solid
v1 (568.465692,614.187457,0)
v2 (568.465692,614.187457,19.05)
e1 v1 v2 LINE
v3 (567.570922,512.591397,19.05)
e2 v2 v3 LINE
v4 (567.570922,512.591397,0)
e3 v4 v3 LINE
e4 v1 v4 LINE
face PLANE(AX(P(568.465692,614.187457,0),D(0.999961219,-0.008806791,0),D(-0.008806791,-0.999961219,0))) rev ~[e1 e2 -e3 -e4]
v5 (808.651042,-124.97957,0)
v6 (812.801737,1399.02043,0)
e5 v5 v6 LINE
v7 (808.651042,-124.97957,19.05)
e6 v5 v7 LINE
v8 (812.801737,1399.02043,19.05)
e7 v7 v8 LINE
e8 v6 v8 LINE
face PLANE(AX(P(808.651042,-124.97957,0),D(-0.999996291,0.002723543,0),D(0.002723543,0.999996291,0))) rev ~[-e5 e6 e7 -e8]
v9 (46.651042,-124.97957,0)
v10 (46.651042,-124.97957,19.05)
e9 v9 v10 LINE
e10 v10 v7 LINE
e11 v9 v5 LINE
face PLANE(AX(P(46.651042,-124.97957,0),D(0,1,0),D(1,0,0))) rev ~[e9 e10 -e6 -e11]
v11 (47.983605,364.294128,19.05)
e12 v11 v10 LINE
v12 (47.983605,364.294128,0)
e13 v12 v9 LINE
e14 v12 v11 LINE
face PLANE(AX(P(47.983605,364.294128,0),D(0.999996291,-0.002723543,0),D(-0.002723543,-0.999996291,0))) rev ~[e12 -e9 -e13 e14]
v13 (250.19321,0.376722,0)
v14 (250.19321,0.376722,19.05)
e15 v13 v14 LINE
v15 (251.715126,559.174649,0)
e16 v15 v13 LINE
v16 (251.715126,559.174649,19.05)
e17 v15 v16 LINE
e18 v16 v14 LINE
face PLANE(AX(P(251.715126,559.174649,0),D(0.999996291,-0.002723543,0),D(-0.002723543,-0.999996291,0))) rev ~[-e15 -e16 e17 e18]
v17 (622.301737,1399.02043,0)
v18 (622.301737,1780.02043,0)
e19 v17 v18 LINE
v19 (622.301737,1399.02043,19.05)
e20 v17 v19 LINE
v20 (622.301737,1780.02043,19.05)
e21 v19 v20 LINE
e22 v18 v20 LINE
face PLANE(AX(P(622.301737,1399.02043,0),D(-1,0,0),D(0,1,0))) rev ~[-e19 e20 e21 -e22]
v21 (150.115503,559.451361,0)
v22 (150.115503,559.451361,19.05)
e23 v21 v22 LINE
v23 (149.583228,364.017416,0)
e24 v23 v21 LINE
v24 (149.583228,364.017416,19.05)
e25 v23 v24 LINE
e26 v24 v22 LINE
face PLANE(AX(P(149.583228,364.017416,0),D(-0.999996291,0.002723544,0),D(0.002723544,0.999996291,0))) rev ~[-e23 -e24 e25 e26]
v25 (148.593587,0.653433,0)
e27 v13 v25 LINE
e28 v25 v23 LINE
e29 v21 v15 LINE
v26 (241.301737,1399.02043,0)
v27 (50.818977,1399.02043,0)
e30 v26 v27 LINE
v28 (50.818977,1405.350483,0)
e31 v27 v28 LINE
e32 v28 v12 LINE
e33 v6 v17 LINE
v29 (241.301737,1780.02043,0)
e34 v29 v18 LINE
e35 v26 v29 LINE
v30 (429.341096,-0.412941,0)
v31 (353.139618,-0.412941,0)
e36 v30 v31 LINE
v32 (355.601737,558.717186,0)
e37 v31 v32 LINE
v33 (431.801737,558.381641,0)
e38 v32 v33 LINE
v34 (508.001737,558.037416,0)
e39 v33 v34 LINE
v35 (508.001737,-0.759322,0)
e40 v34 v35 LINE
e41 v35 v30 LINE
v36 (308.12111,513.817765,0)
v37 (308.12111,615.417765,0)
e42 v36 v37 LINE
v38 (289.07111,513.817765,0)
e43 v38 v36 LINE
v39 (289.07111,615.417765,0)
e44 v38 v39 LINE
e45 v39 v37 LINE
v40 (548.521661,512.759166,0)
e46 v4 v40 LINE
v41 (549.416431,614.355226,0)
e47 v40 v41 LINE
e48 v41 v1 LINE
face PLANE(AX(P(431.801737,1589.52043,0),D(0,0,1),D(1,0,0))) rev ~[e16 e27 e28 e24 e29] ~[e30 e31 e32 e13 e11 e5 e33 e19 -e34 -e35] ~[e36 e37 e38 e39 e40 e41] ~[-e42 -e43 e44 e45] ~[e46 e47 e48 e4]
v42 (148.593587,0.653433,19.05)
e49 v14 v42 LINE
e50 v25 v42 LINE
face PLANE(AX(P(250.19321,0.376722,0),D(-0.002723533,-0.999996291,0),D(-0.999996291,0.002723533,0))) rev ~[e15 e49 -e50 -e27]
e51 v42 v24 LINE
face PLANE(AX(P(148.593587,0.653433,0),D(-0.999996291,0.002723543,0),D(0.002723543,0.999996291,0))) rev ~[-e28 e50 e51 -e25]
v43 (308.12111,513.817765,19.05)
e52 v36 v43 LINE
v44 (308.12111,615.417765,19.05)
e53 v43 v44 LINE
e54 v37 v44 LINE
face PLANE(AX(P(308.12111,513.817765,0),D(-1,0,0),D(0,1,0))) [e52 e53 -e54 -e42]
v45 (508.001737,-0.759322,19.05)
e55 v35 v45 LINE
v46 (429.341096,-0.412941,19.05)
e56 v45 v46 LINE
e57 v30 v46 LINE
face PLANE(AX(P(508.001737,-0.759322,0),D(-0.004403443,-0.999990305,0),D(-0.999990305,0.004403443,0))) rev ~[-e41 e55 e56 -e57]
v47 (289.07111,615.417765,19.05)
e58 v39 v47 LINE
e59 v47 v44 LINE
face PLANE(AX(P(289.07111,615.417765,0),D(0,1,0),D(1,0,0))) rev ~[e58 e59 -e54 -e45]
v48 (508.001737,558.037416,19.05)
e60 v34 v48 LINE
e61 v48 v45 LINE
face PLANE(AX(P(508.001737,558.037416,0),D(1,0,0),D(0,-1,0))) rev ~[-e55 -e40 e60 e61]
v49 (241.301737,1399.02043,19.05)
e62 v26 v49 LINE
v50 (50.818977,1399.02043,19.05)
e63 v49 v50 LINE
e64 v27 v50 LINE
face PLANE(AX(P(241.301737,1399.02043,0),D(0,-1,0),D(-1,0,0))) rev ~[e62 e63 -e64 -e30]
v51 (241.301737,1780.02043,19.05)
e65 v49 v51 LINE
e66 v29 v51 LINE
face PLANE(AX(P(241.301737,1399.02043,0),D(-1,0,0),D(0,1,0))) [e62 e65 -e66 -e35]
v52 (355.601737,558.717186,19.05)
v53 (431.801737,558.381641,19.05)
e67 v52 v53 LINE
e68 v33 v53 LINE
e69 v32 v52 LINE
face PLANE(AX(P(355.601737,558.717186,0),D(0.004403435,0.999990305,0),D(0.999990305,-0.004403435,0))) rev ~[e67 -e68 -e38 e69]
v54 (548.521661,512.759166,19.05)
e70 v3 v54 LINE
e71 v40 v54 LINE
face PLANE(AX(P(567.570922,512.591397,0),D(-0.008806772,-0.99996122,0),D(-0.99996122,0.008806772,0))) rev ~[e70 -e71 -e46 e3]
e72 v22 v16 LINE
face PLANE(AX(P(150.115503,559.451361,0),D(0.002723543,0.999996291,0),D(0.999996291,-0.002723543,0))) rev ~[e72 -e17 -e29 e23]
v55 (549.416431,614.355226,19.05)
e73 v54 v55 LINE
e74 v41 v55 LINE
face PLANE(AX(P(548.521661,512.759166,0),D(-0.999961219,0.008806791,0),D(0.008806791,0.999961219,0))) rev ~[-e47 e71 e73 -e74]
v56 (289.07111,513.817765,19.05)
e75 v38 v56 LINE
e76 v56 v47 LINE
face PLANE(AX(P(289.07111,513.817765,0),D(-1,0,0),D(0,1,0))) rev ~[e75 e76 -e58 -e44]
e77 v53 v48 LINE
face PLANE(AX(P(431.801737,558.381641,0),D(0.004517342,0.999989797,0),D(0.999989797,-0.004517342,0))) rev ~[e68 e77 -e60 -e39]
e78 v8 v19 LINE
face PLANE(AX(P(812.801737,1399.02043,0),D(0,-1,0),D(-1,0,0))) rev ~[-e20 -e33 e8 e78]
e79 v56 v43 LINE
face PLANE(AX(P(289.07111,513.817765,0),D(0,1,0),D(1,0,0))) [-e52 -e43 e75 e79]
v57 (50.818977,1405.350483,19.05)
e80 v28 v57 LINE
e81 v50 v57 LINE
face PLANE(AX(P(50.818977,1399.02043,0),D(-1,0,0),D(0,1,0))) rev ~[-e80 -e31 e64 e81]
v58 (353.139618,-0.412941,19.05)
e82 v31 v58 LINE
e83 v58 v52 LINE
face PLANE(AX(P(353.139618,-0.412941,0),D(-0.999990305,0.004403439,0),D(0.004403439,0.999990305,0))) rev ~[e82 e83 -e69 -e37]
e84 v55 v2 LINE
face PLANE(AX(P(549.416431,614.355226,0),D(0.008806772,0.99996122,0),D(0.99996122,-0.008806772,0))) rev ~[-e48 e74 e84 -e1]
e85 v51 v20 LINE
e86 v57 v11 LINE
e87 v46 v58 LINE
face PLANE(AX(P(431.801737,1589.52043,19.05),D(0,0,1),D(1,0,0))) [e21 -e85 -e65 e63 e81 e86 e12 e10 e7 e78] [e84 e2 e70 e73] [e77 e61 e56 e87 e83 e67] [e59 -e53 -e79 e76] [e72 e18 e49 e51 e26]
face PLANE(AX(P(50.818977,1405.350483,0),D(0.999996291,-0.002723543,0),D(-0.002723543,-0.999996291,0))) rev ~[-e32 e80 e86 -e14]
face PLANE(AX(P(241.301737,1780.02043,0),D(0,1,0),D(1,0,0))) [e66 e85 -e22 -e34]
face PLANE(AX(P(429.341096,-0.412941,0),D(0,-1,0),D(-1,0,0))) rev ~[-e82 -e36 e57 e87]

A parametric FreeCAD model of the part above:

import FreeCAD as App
import Part
import Sketcher

V = App.Vector
Q = App.Units.Quantity


def add_polygon(sketch, points):
    """Adds a closed chain of lines whose ends are joined by coincident constraints."""
    first, n = sketch.GeometryCount, len(points)
    for a, b in zip(points, points[1:] + points[:1]):
        sketch.addGeometry(Part.LineSegment(App.Vector(*a, 0), App.Vector(*b, 0)), False)
    for i in range(n):
        sketch.addConstraint(Sketcher.Constraint("Coincident", first + i, 2, first + (i + 1) % n, 1))

doc = App.newDocument("Part")
body = doc.addObject("PartDesign::Body", "Body")

sketch1 = body.newObject("Sketcher::SketchObject", "Sketch")
sketch1.AttachmentSupport = (doc.getObject("XY_Plane"), [""])
sketch1.MapMode = "FlatFace"
add_polygon(sketch1, [(241.301737, 1780.02043), (241.301737, 1399.02043), (50.818977, 1399.02043), (50.818977, 1405.350483), (47.983605, 364.294128), (46.651042, -124.97957), (808.651042, -124.97957), (812.801737, 1399.02043), (622.301737, 1399.02043), (622.301737, 1780.02043)])
add_polygon(sketch1, [(250.19321, 0.376722), (148.593587, 0.653433), (149.583228, 364.017416), (150.115503, 559.451361), (251.715126, 559.174649)])
add_polygon(sketch1, [(353.139618, -0.412941), (355.601737, 558.717186), (431.801737, 558.381641), (508.001737, 558.037416), (508.001737, -0.759322), (429.341096, -0.412941)])
add_polygon(sketch1, [(308.12111, 513.817765), (289.07111, 513.817765), (289.07111, 615.417765), (308.12111, 615.417765)])
add_polygon(sketch1, [(567.570922, 512.591397), (548.521661, 512.759166), (549.416431, 614.355226), (568.465692, 614.187457)])
sketch1.addConstraint(Sketcher.Constraint("Vertical", 0))
sketch1.addConstraint(Sketcher.Constraint("Horizontal", 1))
sketch1.addConstraint(Sketcher.Constraint("Vertical", 2))
sketch1.addConstraint(Sketcher.Constraint("Horizontal", 5))
sketch1.addConstraint(Sketcher.Constraint("Horizontal", 7))
sketch1.addConstraint(Sketcher.Constraint("Vertical", 8))
sketch1.addConstraint(Sketcher.Constraint("Horizontal", 9))
sketch1.addConstraint(Sketcher.Constraint("Vertical", 18))
sketch1.addConstraint(Sketcher.Constraint("Horizontal", 20))
sketch1.addConstraint(Sketcher.Constraint("Horizontal", 21))
sketch1.addConstraint(Sketcher.Constraint("Vertical", 22))
sketch1.addConstraint(Sketcher.Constraint("Horizontal", 23))
sketch1.addConstraint(Sketcher.Constraint("Vertical", 24))
sketch1.addConstraint(Sketcher.Constraint("DistanceX", 5, 1, 5, 2, Q("30 in")))
sketch1.addConstraint(Sketcher.Constraint("DistanceX", 9, 2, 9, 1, Q("15 in")))
sketch1.addConstraint(Sketcher.Constraint("DistanceY", 0, 2, 0, 1, Q("15 in")))
sketch1.addConstraint(Sketcher.Constraint("DistanceY", 8, 1, 8, 2, Q("15 in")))
sketch1.addConstraint(Sketcher.Constraint("DistanceY", 22, 1, 22, 2, Q("4 in")))
sketch1.addConstraint(Sketcher.Constraint("Distance", 10, Q("4 in")))
sketch1.addConstraint(Sketcher.Constraint("Distance", 13, Q("4 in")))
sketch1.addConstraint(Sketcher.Constraint("Distance", 14, Q("22 in")))
sketch1.addConstraint(Sketcher.Constraint("Distance", 26, Q("4 in")))
sketch1.addConstraint(Sketcher.Constraint("Distance", 28, Q("4 in")))
sketch1.addConstraint(Sketcher.Constraint("DistanceX", 7, 2, 7, 1, Q("7.5 in")))
sketch1.addConstraint(Sketcher.Constraint("DistanceY", 4, 2, 1, 2, Q("60 in")))
sketch1.addConstraint(Sketcher.Constraint("DistanceX", 15, 2, 16, 2, Q("3 in")))
sketch1.addConstraint(Sketcher.Constraint("DistanceX", 16, 2, 17, 2, Q("3 in")))
sketch1.addConstraint(Sketcher.Constraint("DistanceX", 21, 2, 21, 1, Q("0.75 in")))
sketch1.addConstraint(Sketcher.Constraint("Distance", 25, Q("0.75 in")))
sketch1.addConstraint(Sketcher.Constraint("Distance", 27, Q("0.75 in")))
sketch1.addConstraint(Sketcher.Constraint("DistanceX", 1, 2, 1, 1, 190.48276))
sketch1.addConstraint(Sketcher.Constraint("DistanceX", 20, 2, 20, 1, 76.201478))
sketch1.addConstraint(Sketcher.Constraint("DistanceY", 18, 2, 18, 1, 558.796738))
sketch1.addConstraint(Sketcher.Constraint("DistanceY", 3, 2, 1, 2, 1034.726302))
sketch1.addConstraint(Sketcher.Constraint("DistanceX", 11, 2, 13, 2, 102.131898))
sketch1.addConstraint(Sketcher.Constraint("DistanceY", 11, 2, 17, 2, 194.02))
sketch1.addConstraint(Sketcher.Constraint("DistanceY", 25, 2, 24, 2, 1.058599))
sketch1.addConstraint(Sketcher.Constraint("Distance", 11, 363.365331))
sketch1.addConstraint(Sketcher.Constraint("Distance", 12, 195.43467))
sketch1.addConstraint(Sketcher.Constraint("Distance", 16, 76.200739))
sketch1.addConstraint(Sketcher.Constraint("DistanceY", 2, 1, 2, 2, 6.330053))
sketch1.addConstraint(Sketcher.Constraint("DistanceY", -1, 1, 0, 2, 1399.02043))
sketch1.addConstraint(Sketcher.Constraint("DistanceX", -1, 1, 4, 2, 46.651042))
sketch1.addConstraint(Sketcher.Constraint("DistanceX", -1, 1, 11, 2, 149.583228))
sketch1.addConstraint(Sketcher.Constraint("DistanceY", -1, 1, 12, 2, 559.451361))
sketch1.addConstraint(Sketcher.Constraint("DistanceY", -1, 1, 13, 2, 559.174649))
sketch1.addConstraint(Sketcher.Constraint("DistanceX", -1, 1, 14, 2, 250.19321))
sketch1.addConstraint(Sketcher.Constraint("DistanceY", -1, 1, 16, 2, 558.381641))
sketch1.addConstraint(Sketcher.Constraint("DistanceY", 19, 2, -1, 1, 0.412941))
sketch1.addConstraint(Sketcher.Constraint("DistanceX", -1, 1, 20, 2, 353.139618))
sketch1.addConstraint(Sketcher.Constraint("DistanceX", -1, 1, 21, 2, 289.07111))
sketch1.addConstraint(Sketcher.Constraint("DistanceX", -1, 1, 25, 2, 548.521661))
sketch1.addConstraint(Sketcher.Constraint("DistanceX", -1, 1, 26, 2, 549.416431))
sketch1.addConstraint(Sketcher.Constraint("DistanceX", -1, 1, 27, 2, 568.465692))
sketch1.addConstraint(Sketcher.Constraint("DistanceX", 3, 2, 1, 2, 2.835372))
sketch1.addConstraint(Sketcher.Constraint("DistanceX", 10, 2, 0, 2, 92.70815))
sketch1.addConstraint(Sketcher.Constraint("DistanceX", 13, 2, 15, 2, 103.886611))
sketch1.addConstraint(Sketcher.Constraint("DistanceY", 21, 2, 15, 2, 44.899421))
pad1 = body.newObject("PartDesign::Pad", "Pad")
pad1.Profile = sketch1
pad1.Length = Q("0.75 in")

doc.recompute()
